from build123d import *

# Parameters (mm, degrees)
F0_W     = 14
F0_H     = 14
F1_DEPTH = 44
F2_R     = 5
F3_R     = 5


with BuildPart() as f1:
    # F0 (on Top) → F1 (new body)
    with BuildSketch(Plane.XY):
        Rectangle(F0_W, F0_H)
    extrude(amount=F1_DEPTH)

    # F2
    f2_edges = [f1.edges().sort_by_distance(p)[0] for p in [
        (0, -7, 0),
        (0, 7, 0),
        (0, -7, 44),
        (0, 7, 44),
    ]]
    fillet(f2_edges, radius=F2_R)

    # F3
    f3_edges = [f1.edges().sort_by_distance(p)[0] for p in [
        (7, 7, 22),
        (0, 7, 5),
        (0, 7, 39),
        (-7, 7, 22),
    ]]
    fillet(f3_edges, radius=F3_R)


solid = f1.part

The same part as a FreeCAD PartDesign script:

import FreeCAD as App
import Part
import Sketcher


def edges_at(feature, points):
    """Names of the edges that pass closest to the given points."""
    edges = feature.Shape.Edges
    near = lambda p: min(range(len(edges)), key=lambda i: edges[i].distToShape(Part.Vertex(*p))[0])
    return sorted({f"Edge{near(p) + 1}" for p in points})

doc = App.newDocument("Part")
params = doc.addObject("Spreadsheet::Sheet", "Params")
for row, (alias, value) in enumerate([
    ("sketch1_width", "14 mm"),
    ("pad1_length", "44 mm"),
    ("fillet_radius", "5 mm"),
    ("fillet2_radius", "5 mm"),
], start=1):
    params.set(f"A{row}", alias)
    params.set(f"B{row}", "=" + value)
    params.setAlias(f"B{row}", alias)

body = doc.addObject("PartDesign::Body", "Body")

# Sketch on XY plane
sketch1 = doc.addObject("Sketcher::SketchObject", "Sketch")
body.addObject(sketch1)
sketch1.AttachmentSupport = (doc.XY_Plane, [""])
sketch1.MapMode = "FlatFace"
sketch1.addGeometry(Part.LineSegment(App.Vector(-7, 7, 0), App.Vector(-7, -7, 0)), False)
sketch1.addGeometry(Part.LineSegment(App.Vector(-7, -7, 0), App.Vector(7, -7, 0)), False)
sketch1.addGeometry(Part.LineSegment(App.Vector(7, -7, 0), App.Vector(7, 7, 0)), False)
sketch1.addGeometry(Part.LineSegment(App.Vector(7, 7, 0), App.Vector(-7, 7, 0)), False)
sketch1.addConstraint(Sketcher.Constraint("Coincident", 0, 2, 1, 1))
sketch1.addConstraint(Sketcher.Constraint("Coincident", 1, 2, 2, 1))
sketch1.addConstraint(Sketcher.Constraint("Coincident", 2, 2, 3, 1))
sketch1.addConstraint(Sketcher.Constraint("Coincident", 3, 2, 0, 1))
sketch1.addConstraint(Sketcher.Constraint("Vertical", 0))
sketch1.addConstraint(Sketcher.Constraint("Horizontal", 1))
sketch1.addConstraint(Sketcher.Constraint("Vertical", 2))
sketch1.addConstraint(Sketcher.Constraint("Horizontal", 3))
sketch1.addConstraint(Sketcher.Constraint("Symmetric", 0, 2, 2, 2, -1, 1))
sketch1.addConstraint(Sketcher.Constraint("Equal", 3, 0))
sketch1.addConstraint(Sketcher.Constraint("DistanceX", 1, 1, 1, 2, 14.0))
sketch1.setExpression("Constraints[10]", "Params.sketch1_width")
pad1 = doc.addObject("PartDesign::Pad", "Pad")
body.addObject(pad1)
pad1.Profile = sketch1
pad1.setExpression("Length", "Params.pad1_length")
doc.recompute()

fillet = doc.addObject("PartDesign::Fillet", "Fillet")
body.addObject(fillet)
fillet.Base = (pad1, edges_at(pad1, [
    (0, -7, 0),
    (0, 7, 0),
    (0, -7, 44),
    (0, 7, 44),
]))
fillet.setExpression("Radius", "Params.fillet_radius")
doc.recompute()

fillet2 = doc.addObject("PartDesign::Fillet", "Fillet001")
body.addObject(fillet2)
fillet2.Base = (fillet, edges_at(fillet, [
    (7, 7, 22),
    (0, 7, 5),
    (0, 7, 39),
    (-7, 7, 22),
]))
fillet2.setExpression("Radius", "Params.fillet2_radius")

doc.recompute()
